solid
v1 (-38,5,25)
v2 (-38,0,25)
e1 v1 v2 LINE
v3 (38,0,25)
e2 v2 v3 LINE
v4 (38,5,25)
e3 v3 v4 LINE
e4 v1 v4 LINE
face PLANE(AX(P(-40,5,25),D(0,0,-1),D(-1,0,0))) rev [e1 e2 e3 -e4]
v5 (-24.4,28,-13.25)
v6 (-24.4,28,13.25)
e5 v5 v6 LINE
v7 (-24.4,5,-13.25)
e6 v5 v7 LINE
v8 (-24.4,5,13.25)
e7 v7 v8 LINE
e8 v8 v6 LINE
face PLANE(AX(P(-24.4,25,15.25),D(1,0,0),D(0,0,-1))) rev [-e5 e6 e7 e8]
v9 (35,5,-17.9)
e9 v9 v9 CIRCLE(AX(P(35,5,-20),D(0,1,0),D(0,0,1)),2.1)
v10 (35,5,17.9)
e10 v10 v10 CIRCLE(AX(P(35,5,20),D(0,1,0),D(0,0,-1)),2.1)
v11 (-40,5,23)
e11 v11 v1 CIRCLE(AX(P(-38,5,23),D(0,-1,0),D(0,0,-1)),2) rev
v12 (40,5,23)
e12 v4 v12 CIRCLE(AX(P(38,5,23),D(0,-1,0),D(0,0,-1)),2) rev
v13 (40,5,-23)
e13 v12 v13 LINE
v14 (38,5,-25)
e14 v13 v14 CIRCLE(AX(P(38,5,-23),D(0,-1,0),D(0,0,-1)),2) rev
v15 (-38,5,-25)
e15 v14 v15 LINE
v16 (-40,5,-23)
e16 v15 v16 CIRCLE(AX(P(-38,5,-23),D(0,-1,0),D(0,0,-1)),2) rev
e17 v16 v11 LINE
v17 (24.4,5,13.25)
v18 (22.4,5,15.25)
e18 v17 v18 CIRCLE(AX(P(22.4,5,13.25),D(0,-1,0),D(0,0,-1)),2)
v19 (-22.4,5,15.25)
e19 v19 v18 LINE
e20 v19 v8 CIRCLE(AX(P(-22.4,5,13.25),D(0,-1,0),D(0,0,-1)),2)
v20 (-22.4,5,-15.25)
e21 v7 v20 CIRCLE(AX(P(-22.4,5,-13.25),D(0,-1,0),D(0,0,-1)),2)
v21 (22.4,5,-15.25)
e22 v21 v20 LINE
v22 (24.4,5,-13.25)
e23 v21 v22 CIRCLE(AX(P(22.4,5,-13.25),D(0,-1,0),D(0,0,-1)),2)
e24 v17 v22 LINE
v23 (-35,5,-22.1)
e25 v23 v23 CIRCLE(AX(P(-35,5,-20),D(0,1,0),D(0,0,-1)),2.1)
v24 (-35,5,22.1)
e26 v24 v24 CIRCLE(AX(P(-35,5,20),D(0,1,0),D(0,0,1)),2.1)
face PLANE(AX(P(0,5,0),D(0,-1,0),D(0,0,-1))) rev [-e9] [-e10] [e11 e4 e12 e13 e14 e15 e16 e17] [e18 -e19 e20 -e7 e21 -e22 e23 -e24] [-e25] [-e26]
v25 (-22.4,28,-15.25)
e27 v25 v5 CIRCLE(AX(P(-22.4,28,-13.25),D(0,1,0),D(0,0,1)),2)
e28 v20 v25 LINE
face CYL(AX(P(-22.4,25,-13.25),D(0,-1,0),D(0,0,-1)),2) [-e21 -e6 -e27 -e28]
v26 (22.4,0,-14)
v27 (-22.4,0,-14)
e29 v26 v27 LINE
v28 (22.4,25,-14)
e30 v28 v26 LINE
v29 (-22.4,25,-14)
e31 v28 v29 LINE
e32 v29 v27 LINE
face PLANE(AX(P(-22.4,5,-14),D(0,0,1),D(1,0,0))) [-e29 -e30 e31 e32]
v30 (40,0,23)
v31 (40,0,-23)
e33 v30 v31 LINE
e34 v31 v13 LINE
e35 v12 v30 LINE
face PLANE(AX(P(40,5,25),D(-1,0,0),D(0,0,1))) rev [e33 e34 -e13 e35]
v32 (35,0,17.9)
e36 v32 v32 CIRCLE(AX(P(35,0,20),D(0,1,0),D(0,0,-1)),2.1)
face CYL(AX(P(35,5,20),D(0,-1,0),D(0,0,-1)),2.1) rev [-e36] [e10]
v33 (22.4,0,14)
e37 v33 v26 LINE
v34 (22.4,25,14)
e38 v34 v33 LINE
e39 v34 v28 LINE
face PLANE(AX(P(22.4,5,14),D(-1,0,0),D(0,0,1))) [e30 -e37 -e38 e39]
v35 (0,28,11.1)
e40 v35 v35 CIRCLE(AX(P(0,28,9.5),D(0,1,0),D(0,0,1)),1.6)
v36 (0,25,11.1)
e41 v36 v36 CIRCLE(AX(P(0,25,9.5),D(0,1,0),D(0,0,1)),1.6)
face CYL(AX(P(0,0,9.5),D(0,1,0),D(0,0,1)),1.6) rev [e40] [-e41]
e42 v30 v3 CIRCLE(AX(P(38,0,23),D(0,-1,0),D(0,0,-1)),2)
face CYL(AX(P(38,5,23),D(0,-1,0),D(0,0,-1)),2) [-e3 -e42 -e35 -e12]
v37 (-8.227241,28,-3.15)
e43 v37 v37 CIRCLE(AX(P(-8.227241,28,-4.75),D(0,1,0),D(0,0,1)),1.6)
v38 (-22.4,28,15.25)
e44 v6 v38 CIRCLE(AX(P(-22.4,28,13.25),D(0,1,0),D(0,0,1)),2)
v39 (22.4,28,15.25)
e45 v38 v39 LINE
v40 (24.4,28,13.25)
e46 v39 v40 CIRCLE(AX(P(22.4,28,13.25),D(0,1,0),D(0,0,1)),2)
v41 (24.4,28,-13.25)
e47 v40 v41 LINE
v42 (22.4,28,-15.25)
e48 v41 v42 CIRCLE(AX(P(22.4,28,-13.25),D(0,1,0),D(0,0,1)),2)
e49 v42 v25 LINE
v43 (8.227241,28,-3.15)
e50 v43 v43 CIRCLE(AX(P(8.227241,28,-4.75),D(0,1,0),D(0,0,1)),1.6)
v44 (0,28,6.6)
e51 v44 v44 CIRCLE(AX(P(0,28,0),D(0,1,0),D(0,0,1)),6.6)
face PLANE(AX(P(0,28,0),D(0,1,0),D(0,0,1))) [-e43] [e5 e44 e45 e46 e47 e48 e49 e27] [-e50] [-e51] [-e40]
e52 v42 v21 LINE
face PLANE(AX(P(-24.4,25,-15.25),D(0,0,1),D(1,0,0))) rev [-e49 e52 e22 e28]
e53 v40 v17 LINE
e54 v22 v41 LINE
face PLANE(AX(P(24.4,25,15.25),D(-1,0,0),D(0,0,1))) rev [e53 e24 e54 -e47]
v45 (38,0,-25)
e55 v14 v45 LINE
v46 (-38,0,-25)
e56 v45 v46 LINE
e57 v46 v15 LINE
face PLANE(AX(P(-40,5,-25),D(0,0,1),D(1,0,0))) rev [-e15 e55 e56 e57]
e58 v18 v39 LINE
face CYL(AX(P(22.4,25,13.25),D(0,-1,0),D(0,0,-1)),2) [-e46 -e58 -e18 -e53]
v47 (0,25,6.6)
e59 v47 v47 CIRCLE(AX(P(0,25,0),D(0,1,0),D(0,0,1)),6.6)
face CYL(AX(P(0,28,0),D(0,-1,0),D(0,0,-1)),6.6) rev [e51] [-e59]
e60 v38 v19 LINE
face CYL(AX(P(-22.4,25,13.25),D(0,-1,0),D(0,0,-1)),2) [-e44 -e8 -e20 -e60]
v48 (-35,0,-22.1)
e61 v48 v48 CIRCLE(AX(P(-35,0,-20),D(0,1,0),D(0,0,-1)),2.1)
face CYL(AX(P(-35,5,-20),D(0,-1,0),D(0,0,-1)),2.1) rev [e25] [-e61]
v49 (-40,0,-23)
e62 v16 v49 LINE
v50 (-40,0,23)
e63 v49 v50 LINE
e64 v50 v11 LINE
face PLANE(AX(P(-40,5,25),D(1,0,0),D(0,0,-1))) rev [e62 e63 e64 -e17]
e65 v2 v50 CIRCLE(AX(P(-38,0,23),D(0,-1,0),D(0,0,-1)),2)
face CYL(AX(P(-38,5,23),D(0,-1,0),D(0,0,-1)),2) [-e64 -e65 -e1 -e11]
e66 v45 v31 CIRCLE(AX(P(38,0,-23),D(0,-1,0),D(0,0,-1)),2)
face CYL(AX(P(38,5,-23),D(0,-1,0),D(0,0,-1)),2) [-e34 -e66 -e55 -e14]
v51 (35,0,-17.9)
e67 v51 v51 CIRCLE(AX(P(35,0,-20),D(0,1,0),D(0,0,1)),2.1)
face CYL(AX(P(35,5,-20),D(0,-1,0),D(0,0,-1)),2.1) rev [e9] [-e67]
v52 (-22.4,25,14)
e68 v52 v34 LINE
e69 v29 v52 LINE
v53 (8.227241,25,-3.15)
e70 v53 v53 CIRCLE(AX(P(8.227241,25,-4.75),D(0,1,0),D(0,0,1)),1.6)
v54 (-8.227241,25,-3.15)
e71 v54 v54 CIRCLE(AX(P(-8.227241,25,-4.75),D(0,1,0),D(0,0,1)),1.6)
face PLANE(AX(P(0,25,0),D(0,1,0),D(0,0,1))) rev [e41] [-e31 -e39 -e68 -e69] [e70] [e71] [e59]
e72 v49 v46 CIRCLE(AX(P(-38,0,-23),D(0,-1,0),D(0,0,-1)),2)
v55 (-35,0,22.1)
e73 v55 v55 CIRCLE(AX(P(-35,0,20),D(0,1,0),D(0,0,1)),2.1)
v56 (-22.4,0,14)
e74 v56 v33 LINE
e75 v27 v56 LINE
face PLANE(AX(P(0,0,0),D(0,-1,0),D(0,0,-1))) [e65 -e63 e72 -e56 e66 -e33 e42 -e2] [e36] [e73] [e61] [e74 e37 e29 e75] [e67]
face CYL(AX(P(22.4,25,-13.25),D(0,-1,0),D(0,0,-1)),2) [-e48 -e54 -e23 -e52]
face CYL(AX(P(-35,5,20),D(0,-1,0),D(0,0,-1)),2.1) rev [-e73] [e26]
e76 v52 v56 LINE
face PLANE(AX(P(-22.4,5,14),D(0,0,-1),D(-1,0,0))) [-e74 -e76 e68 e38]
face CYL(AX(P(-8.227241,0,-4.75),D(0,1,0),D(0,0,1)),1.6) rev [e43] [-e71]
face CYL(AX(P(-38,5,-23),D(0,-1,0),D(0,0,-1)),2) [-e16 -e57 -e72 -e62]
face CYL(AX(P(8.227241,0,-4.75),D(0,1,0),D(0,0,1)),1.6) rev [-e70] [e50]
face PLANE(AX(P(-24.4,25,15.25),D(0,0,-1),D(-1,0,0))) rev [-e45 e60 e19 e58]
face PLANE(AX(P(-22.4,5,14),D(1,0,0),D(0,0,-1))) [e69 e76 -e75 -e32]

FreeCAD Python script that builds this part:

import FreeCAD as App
import Part
import Sketcher
from FreeCAD import Vector


def edges_at(feature, points):
    """Names of the edges that pass closest to the given points."""
    edges = feature.Shape.Edges
    near = lambda p: min(range(len(edges)), key=lambda i: edges[i].distToShape(Part.Vertex(*p))[0])
    return sorted({f"Edge{near(p) + 1}" for p in points})

doc = App.newDocument("Part")
body = doc.addObject("PartDesign::Body", "Body")

sketch1 = body.newObject("Sketcher::SketchObject", "Sketch")
sketch1.AttachmentSupport = (doc.getObject("XZ_Plane"), [""])
sketch1.MapMode = "FlatFace"
sketch1.addGeometry([
    Part.LineSegment(Vector(-40, -25, 0), Vector(-40, 25, 0)),
    Part.LineSegment(Vector(-40, 25, 0), Vector(40, 25, 0)),
    Part.LineSegment(Vector(40, 25, 0), Vector(40, -25, 0)),
    Part.LineSegment(Vector(40, -25, 0), Vector(-40, -25, 0)),
    Part.Circle(Vector(-35, 20, 0), Vector(0, 0, 1), 2.1),
    Part.Circle(Vector(35, 20, 0), Vector(0, 0, 1), 2.1),
    Part.Circle(Vector(-35, -20, 0), Vector(0, 0, 1), 2.1),
    Part.LineSegment(Vector(22.4, 14, 0), Vector(-22.4, 14, 0)),
    Part.LineSegment(Vector(-22.4, 14, 0), Vector(-22.4, -14, 0)),
    Part.LineSegment(Vector(-22.4, -14, 0), Vector(22.4, -14, 0)),
    Part.LineSegment(Vector(22.4, -14, 0), Vector(22.4, 14, 0)),
    Part.Circle(Vector(35, -20, 0), Vector(0, 0, 1), 2.1),
], False)
sketch1.addConstraint([
    Sketcher.Constraint("Coincident", 0, 2, 1, 1),
    Sketcher.Constraint("Coincident", 1, 2, 2, 1),
    Sketcher.Constraint("Coincident", 2, 2, 3, 1),
    Sketcher.Constraint("Coincident", 3, 2, 0, 1),
    Sketcher.Constraint("Coincident", 7, 2, 8, 1),
    Sketcher.Constraint("Coincident", 8, 2, 9, 1),
    Sketcher.Constraint("Coincident", 9, 2, 10, 1),
    Sketcher.Constraint("Coincident", 10, 2, 7, 1),
    Sketcher.Constraint("Vertical", 0),
    Sketcher.Constraint("Horizontal", 1),
    Sketcher.Constraint("Vertical", 2),
    Sketcher.Constraint("Horizontal", 3),
    Sketcher.Constraint("Horizontal", 7),
    Sketcher.Constraint("Vertical", 8),
    Sketcher.Constraint("Horizontal", 9),
    Sketcher.Constraint("Vertical", 10),
    Sketcher.Constraint("Equal", 4, 5),
    Sketcher.Constraint("Equal", 5, 6),
    Sketcher.Constraint("Equal", 6, 11),
    Sketcher.Constraint("Symmetric", 5, 3, 6, 3, -1, 1),
    Sketcher.Constraint("Symmetric", 4, 3, 11, 3, -1, 1),
    Sketcher.Constraint("Symmetric", 0, 2, 2, 2, -1, 1),
    Sketcher.Constraint("Symmetric", 7, 2, 9, 2, -1, 1),
    Sketcher.Constraint("Symmetric", 4, 3, 5, 3, -2),
    Sketcher.Constraint("Diameter", 4, 4.2),
    Sketcher.Constraint("DistanceX", 1, 1, 1, 2, 80.0),
    Sketcher.Constraint("DistanceY", 0, 1, 0, 2, 50.0),
    Sketcher.Constraint("DistanceY", 8, 2, 8, 1, 28.0),
    Sketcher.Constraint("DistanceX", 7, 2, 7, 1, 44.8),
    Sketcher.Constraint("DistanceX", 4, 3, -1, 1, 35.0),
    Sketcher.Constraint("DistanceY", -1, 1, 4, 3, 20.0),
])
pad1 = body.newObject("PartDesign::Pad", "Pad")
pad1.Profile = sketch1
pad1.Length = 5
pad1.Reversed = True
doc.recompute()

fillet = body.newObject("PartDesign::Fillet", "Fillet")
fillet.Base = (pad1, edges_at(pad1, [
    (40, 2.5, 25),
    (-40, 2.5, 25),
    (-40, 2.5, -25),
    (40, 2.5, -25),
]))
fillet.Radius = 2

sketch2 = body.newObject("Sketcher::SketchObject", "Sketch001")
sketch2.AttachmentSupport = (doc.getObject("XZ_Plane"), [""])
sketch2.MapMode = "FlatFace"
sketch2.AttachmentOffset = App.Placement(Vector(0, 0, -5), App.Rotation())
sketch2.addGeometry([
    Part.LineSegment(Vector(-24.4, -15.25, 0), Vector(-24.4, 15.25, 0)),
    Part.LineSegment(Vector(-24.4, 15.25, 0), Vector(24.4, 15.25, 0)),
    Part.LineSegment(Vector(24.4, 15.25, 0), Vector(24.4, -15.25, 0)),
    Part.LineSegment(Vector(24.4, -15.25, 0), Vector(-24.4, -15.25, 0)),
    Part.LineSegment(Vector(22.4, 14, 0), Vector(-22.4, 14, 0)),
    Part.LineSegment(Vector(-22.4, 14, 0), Vector(-22.4, -14, 0)),
    Part.LineSegment(Vector(-22.4, -14, 0), Vector(22.4, -14, 0)),
    Part.LineSegment(Vector(22.4, -14, 0), Vector(22.4, 14, 0)),
], False)
sketch2.addConstraint([
    Sketcher.Constraint("Coincident", 0, 2, 1, 1),
    Sketcher.Constraint("Coincident", 1, 2, 2, 1),
    Sketcher.Constraint("Coincident", 2, 2, 3, 1),
    Sketcher.Constraint("Coincident", 3, 2, 0, 1),
    Sketcher.Constraint("Coincident", 4, 2, 5, 1),
    Sketcher.Constraint("Coincident", 5, 2, 6, 1),
    Sketcher.Constraint("Coincident", 6, 2, 7, 1),
    Sketcher.Constraint("Coincident", 7, 2, 4, 1),
    Sketcher.Constraint("Vertical", 0),
    Sketcher.Constraint("Horizontal", 1),
    Sketcher.Constraint("Vertical", 2),
    Sketcher.Constraint("Horizontal", 3),
    Sketcher.Constraint("Horizontal", 4),
    Sketcher.Constraint("Vertical", 5),
    Sketcher.Constraint("Horizontal", 6),
    Sketcher.Constraint("Vertical", 7),
    Sketcher.Constraint("Symmetric", 0, 2, 2, 2, -1, 1),
    Sketcher.Constraint("Symmetric", 4, 2, 6, 2, -1, 1),
    Sketcher.Constraint("DistanceY", 5, 2, 5, 1, 28.0),
    Sketcher.Constraint("DistanceX", 1, 1, 1, 2, 48.8),
    Sketcher.Constraint("DistanceX", 4, 2, 4, 1, 44.8),
    Sketcher.Constraint("DistanceY", 0, 1, 0, 2, 30.5),
])
pad2 = body.newObject("PartDesign::Pad", "Pad001")
pad2.Profile = sketch2
pad2.Length = 20
pad2.Reversed = True

sketch3 = body.newObject("Sketcher::SketchObject", "Sketch002")
sketch3.AttachmentSupport = (doc.getObject("XZ_Plane"), [""])
sketch3.MapMode = "FlatFace"
sketch3.AttachmentOffset = App.Placement(Vector(0, 0, -25), App.Rotation())
sketch3.addGeometry([
    Part.LineSegment(Vector(-24.4, -15.25, 0), Vector(-24.4, 15.25, 0)),
    Part.LineSegment(Vector(-24.4, 15.25, 0), Vector(24.4, 15.25, 0)),
    Part.LineSegment(Vector(24.4, 15.25, 0), Vector(24.4, -15.25, 0)),
    Part.LineSegment(Vector(24.4, -15.25, 0), Vector(-24.4, -15.25, 0)),
    Part.Circle(Vector(0, 0, 0), Vector(0, 0, 1), 6.6),
], False)
sketch3.addConstraint([
    Sketcher.Constraint("Coincident", 0, 2, 1, 1),
    Sketcher.Constraint("Coincident", 1, 2, 2, 1),
    Sketcher.Constraint("Coincident", 2, 2, 3, 1),
    Sketcher.Constraint("Coincident", 3, 2, 0, 1),
    Sketcher.Constraint("Vertical", 0),
    Sketcher.Constraint("Horizontal", 1),
    Sketcher.Constraint("Vertical", 2),
    Sketcher.Constraint("Horizontal", 3),
    Sketcher.Constraint("Coincident", 4, 3, -1, 1),
    Sketcher.Constraint("Symmetric", 0, 2, 2, 2, -1, 1),
    Sketcher.Constraint("Diameter", 4, 13.2),
    Sketcher.Constraint("DistanceX", 1, 1, 1, 2, 48.8),
    Sketcher.Constraint("DistanceY", 0, 1, 0, 2, 30.5),
])
pad3 = body.newObject("PartDesign::Pad", "Pad002")
pad3.Profile = sketch3
pad3.Length = 3
pad3.Reversed = True
doc.recompute()

fillet2 = body.newObject("PartDesign::Fillet", "Fillet001")
fillet2.Base = (pad3, edges_at(pad3, [
    (24.4, 16.5, 15.25),
    (24.4, 16.5, -15.25),
    (-24.4, 16.5, -15.25),
    (-24.4, 16.5, 15.25),
]))
fillet2.Radius = 2

sketch4 = body.newObject("Sketcher::SketchObject", "Sketch003")
sketch4.AttachmentSupport = (doc.getObject("XZ_Plane"), [""])
sketch4.MapMode = "FlatFace"
sketch4.AttachmentOffset = App.Placement(Vector(0, 0, -28), App.Rotation())
sketch4.addGeometry([
    Part.Circle(Vector(0, 9.5, 0), Vector(0, 0, 1), 1.6),
    Part.Circle(Vector(-8.227241, -4.75, 0), Vector(0, 0, 1), 1.6),
    Part.Circle(Vector(8.227241, -4.75, 0), Vector(0, 0, 1), 1.6),
], False)
sketch4.addConstraint([
    Sketcher.Constraint("Equal", 0, 1),
    Sketcher.Constraint("Equal", 1, 2),
    Sketcher.Constraint("Symmetric", 1, 3, 2, 3, -2),
    Sketcher.Constraint("PointOnObject", 0, 3, -2),
    Sketcher.Constraint("Diameter", 0, 3.2),
    Sketcher.Constraint("DistanceY", -1, 1, 0, 3, 9.5),
    Sketcher.Constraint("DistanceY", 1, 3, -1, 1, 4.75),
    Sketcher.Constraint("DistanceX", 1, 3, -1, 1, 8.227241),
])
pocket1 = body.newObject("PartDesign::Pocket", "Pocket")
pocket1.Profile = sketch4
pocket1.Type = "ThroughAll"
pocket1.Reversed = True

doc.recompute()
